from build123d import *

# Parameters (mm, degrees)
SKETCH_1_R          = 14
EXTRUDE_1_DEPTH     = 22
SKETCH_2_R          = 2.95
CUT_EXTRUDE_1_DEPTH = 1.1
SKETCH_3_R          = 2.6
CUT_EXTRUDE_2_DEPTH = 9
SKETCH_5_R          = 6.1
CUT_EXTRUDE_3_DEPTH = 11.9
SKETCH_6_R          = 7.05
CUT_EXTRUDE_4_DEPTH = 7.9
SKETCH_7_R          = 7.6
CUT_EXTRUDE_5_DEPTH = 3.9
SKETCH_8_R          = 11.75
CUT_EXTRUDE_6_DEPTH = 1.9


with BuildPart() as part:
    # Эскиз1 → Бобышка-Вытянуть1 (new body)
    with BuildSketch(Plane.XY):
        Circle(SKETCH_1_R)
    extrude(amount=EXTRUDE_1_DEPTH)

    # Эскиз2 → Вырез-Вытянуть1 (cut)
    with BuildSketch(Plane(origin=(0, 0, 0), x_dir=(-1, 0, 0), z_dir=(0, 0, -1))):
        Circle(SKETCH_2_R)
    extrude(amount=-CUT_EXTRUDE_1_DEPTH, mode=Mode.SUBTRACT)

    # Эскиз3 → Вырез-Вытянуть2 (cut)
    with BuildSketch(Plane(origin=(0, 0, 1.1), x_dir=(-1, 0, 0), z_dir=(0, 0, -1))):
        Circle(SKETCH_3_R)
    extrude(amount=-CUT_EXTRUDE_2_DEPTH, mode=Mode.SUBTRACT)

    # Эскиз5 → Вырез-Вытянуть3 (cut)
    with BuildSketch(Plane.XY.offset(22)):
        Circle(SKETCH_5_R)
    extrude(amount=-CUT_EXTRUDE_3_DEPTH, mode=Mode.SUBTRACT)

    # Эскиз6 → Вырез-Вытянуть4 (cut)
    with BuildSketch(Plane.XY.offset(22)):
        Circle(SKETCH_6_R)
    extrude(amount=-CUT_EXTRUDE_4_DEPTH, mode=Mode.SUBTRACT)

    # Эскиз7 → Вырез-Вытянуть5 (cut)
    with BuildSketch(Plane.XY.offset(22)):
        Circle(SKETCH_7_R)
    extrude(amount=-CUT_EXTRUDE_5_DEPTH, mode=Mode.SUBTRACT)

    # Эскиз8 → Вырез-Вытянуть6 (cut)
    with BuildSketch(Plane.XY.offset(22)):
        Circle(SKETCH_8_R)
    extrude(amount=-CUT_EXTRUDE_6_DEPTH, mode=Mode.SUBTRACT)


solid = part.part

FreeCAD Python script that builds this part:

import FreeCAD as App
import Part
import Sketcher

doc = App.newDocument("Part")
body = doc.addObject("PartDesign::Body", "Body")

# Sketch on XY plane
sketch1 = doc.addObject("Sketcher::SketchObject", "Sketch")
body.addObject(sketch1)
sketch1.AttachmentSupport = (doc.XY_Plane, [""])
sketch1.MapMode = "FlatFace"
sketch1.addGeometry(Part.Circle(App.Vector(0, 0, 0), App.Vector(0, 0, 1), 14), False)
sketch1.addConstraint([
    Sketcher.Constraint("Coincident", 0, 3, -1, 1),
    Sketcher.Constraint("Diameter", 0, 28.0),
])
pad1 = doc.addObject("PartDesign::Pad", "Pad")
body.addObject(pad1)
pad1.Profile = sketch1
pad1.Length = 22

# Sketch on XY plane
sketch2 = doc.addObject("Sketcher::SketchObject", "Sketch001")
body.addObject(sketch2)
sketch2.AttachmentSupport = (doc.XY_Plane, [""])
sketch2.MapMode = "FlatFace"
sketch2.addGeometry(Part.Circle(App.Vector(0, 0, 0), App.Vector(0, 0, 1), 2.95), False)
sketch2.addConstraint([
    Sketcher.Constraint("Coincident", 0, 3, -1, 1),
    Sketcher.Constraint("Diameter", 0, 5.9),
])
pocket1 = doc.addObject("PartDesign::Pocket", "Pocket")
body.addObject(pocket1)
pocket1.Profile = sketch2
pocket1.Length = 1.1
pocket1.Reversed = True

# Sketch on XY plane
sketch3 = doc.addObject("Sketcher::SketchObject", "Sketch002")
body.addObject(sketch3)
sketch3.AttachmentSupport = (doc.XY_Plane, [""])
sketch3.MapMode = "FlatFace"
sketch3.AttachmentOffset = App.Placement(App.Vector(0, 0, 1.1), App.Rotation())
sketch3.addGeometry(Part.Circle(App.Vector(0, 0, 0), App.Vector(0, 0, 1), 2.6), False)
sketch3.addConstraint([
    Sketcher.Constraint("Coincident", 0, 3, -1, 1),
    Sketcher.Constraint("Diameter", 0, 5.2),
])
pocket2 = doc.addObject("PartDesign::Pocket", "Pocket001")
body.addObject(pocket2)
pocket2.Profile = sketch3
pocket2.Length = 9
pocket2.Reversed = True

# Sketch on XY plane
sketch4 = doc.addObject("Sketcher::SketchObject", "Sketch003")
body.addObject(sketch4)
sketch4.AttachmentSupport = (doc.XY_Plane, [""])
sketch4.MapMode = "FlatFace"
sketch4.AttachmentOffset = App.Placement(App.Vector(0, 0, 22), App.Rotation())
sketch4.addGeometry(Part.Circle(App.Vector(0, 0, 0), App.Vector(0, 0, 1), 6.1), False)
sketch4.addConstraint([
    Sketcher.Constraint("Coincident", 0, 3, -1, 1),
    Sketcher.Constraint("Diameter", 0, 12.2),
])
pocket3 = doc.addObject("PartDesign::Pocket", "Pocket002")
body.addObject(pocket3)
pocket3.Profile = sketch4
pocket3.Length = 11.9

# Sketch on XY plane
sketch5 = doc.addObject("Sketcher::SketchObject", "Sketch004")
body.addObject(sketch5)
sketch5.AttachmentSupport = (doc.XY_Plane, [""])
sketch5.MapMode = "FlatFace"
sketch5.AttachmentOffset = App.Placement(App.Vector(0, 0, 22), App.Rotation())
sketch5.addGeometry(Part.Circle(App.Vector(0, 0, 0), App.Vector(0, 0, 1), 7.05), False)
sketch5.addConstraint([
    Sketcher.Constraint("Coincident", 0, 3, -1, 1),
    Sketcher.Constraint("Diameter", 0, 14.1),
])
pocket4 = doc.addObject("PartDesign::Pocket", "Pocket003")
body.addObject(pocket4)
pocket4.Profile = sketch5
pocket4.Length = 7.9

# Sketch on XY plane
sketch6 = doc.addObject("Sketcher::SketchObject", "Sketch005")
body.addObject(sketch6)
sketch6.AttachmentSupport = (doc.XY_Plane, [""])
sketch6.MapMode = "FlatFace"
sketch6.AttachmentOffset = App.Placement(App.Vector(0, 0, 22), App.Rotation())
sketch6.addGeometry(Part.Circle(App.Vector(0, 0, 0), App.Vector(0, 0, 1), 7.6), False)
sketch6.addConstraint([
    Sketcher.Constraint("Coincident", 0, 3, -1, 1),
    Sketcher.Constraint("Diameter", 0, 15.2),
])
pocket5 = doc.addObject("PartDesign::Pocket", "Pocket004")
body.addObject(pocket5)
pocket5.Profile = sketch6
pocket5.Length = 3.9

# Sketch on XY plane
sketch7 = doc.addObject("Sketcher::SketchObject", "Sketch006")
body.addObject(sketch7)
sketch7.AttachmentSupport = (doc.XY_Plane, [""])
sketch7.MapMode = "FlatFace"
sketch7.AttachmentOffset = App.Placement(App.Vector(0, 0, 22), App.Rotation())
sketch7.addGeometry(Part.Circle(App.Vector(0, 0, 0), App.Vector(0, 0, 1), 11.75), False)
sketch7.addConstraint([
    Sketcher.Constraint("Coincident", 0, 3, -1, 1),
    Sketcher.Constraint("Diameter", 0, 23.5),
])
pocket6 = doc.addObject("PartDesign::Pocket", "Pocket005")
body.addObject(pocket6)
pocket6.Profile = sketch7
pocket6.Length = 1.9

doc.recompute()
